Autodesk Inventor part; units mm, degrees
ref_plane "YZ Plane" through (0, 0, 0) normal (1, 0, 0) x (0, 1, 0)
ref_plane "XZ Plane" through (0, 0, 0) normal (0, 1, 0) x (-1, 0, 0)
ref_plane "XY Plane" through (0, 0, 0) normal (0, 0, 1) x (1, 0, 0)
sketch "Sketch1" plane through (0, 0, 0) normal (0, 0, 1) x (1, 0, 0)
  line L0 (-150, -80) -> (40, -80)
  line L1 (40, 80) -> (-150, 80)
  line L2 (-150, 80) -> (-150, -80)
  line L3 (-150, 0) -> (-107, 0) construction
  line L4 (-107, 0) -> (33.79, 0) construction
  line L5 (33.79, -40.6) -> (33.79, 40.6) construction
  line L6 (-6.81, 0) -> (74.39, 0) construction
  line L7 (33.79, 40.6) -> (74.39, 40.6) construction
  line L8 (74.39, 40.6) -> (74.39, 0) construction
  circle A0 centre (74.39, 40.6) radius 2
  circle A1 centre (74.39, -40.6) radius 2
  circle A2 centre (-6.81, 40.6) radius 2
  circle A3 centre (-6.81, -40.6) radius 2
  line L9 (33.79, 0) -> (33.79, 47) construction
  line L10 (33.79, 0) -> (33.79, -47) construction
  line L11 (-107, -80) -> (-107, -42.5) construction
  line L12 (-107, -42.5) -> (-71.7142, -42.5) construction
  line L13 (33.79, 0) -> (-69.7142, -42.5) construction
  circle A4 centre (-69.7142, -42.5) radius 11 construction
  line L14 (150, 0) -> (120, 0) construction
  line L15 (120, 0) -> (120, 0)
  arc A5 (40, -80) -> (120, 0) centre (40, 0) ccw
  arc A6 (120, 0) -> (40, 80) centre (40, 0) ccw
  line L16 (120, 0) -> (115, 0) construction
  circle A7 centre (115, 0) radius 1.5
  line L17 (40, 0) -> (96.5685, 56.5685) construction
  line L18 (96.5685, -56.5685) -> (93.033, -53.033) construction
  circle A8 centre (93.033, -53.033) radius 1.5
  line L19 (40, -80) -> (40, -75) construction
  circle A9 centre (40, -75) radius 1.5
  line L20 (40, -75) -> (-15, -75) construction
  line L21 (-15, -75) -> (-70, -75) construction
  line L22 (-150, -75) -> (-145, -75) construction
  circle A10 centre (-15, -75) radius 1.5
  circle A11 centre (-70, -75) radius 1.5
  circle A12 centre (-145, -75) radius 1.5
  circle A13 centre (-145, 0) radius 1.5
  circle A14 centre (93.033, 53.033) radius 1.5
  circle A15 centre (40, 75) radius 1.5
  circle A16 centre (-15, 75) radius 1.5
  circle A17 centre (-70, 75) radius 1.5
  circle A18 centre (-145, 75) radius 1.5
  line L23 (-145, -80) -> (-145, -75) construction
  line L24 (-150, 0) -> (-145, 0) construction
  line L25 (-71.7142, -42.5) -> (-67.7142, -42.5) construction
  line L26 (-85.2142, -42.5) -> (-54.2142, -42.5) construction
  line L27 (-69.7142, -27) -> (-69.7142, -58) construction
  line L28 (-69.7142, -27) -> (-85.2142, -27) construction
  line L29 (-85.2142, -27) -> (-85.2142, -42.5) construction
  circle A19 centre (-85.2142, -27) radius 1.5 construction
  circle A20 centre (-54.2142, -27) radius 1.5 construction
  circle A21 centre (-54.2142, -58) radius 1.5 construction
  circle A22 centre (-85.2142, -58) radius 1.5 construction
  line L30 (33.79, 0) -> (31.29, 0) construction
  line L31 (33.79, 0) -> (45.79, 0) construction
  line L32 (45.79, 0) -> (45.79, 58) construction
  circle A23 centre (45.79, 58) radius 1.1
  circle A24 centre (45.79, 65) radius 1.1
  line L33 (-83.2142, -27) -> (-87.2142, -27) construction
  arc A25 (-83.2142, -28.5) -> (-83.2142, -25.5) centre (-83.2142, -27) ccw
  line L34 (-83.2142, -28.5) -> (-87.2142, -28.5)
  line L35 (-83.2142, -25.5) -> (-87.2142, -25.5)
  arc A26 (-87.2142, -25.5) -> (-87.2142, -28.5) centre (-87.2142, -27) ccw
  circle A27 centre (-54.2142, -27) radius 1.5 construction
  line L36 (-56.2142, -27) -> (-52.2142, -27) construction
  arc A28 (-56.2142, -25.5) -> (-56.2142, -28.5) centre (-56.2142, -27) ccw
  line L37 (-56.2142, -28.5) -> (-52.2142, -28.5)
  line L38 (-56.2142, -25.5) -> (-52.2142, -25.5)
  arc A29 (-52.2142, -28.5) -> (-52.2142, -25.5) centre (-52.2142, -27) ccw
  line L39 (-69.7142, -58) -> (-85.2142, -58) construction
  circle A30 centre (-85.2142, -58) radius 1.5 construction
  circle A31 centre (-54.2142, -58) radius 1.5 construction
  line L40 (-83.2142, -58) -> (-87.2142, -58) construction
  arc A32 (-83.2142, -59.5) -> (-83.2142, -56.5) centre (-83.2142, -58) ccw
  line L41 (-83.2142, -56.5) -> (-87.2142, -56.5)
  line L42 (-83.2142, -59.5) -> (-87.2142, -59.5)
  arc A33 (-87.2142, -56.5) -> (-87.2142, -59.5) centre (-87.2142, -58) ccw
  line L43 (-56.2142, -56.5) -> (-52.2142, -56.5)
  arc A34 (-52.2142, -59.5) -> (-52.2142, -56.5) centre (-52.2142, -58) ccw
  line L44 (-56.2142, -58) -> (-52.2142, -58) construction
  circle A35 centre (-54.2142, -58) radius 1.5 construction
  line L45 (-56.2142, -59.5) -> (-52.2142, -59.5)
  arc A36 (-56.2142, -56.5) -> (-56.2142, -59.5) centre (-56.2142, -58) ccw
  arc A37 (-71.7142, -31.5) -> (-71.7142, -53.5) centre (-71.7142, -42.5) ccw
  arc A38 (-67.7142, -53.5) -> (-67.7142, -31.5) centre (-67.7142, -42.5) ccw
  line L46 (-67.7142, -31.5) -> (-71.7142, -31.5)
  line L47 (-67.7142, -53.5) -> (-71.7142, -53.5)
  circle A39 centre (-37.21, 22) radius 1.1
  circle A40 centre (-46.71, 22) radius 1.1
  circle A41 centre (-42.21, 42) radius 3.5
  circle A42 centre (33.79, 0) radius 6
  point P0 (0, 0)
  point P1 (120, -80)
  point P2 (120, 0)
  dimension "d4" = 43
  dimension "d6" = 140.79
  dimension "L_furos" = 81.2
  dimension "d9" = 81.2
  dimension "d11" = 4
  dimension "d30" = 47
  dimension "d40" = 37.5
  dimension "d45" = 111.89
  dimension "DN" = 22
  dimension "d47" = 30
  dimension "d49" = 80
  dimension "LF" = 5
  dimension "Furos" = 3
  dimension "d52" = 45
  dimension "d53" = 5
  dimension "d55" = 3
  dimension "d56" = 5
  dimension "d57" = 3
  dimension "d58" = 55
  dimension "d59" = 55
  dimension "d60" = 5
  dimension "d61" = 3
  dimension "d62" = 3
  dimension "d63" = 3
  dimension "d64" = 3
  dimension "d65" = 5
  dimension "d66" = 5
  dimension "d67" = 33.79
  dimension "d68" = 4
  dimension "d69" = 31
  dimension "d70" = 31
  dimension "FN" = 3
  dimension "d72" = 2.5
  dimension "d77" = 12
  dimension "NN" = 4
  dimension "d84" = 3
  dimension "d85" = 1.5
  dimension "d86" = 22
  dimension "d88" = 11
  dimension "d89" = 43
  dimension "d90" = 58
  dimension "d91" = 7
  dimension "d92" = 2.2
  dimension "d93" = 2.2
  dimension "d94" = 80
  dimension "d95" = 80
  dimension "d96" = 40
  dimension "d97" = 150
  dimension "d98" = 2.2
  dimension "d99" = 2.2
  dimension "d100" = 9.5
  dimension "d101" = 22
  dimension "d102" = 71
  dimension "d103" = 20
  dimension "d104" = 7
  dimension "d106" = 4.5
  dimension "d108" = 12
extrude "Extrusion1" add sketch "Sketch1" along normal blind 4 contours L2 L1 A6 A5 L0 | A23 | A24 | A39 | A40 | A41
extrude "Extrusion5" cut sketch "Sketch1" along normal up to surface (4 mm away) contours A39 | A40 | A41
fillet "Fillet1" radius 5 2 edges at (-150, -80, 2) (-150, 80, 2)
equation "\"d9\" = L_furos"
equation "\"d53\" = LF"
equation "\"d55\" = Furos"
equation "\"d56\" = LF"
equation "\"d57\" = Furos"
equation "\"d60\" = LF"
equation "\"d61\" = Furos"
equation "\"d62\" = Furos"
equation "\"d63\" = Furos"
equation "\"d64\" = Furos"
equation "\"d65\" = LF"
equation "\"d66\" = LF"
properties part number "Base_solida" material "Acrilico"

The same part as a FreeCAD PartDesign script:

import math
import FreeCAD as App
import Part
import Sketcher


def edges_at(feature, points):
    """Names of the edges that pass closest to the given points."""
    edges = feature.Shape.Edges
    near = lambda p: min(range(len(edges)), key=lambda i: edges[i].distToShape(Part.Vertex(*p))[0])
    return sorted({f"Edge{near(p) + 1}" for p in points})

doc = App.newDocument("Part")
body = doc.addObject("PartDesign::Body", "Body")

# Sketch on XY plane
sketch1 = doc.addObject("Sketcher::SketchObject", "Sketch")
body.addObject(sketch1)
sketch1.AttachmentSupport = (doc.XY_Plane, [""])
sketch1.MapMode = "FlatFace"
sketch1.addGeometry(Part.LineSegment(App.Vector(-150, 80, 0), App.Vector(-150, -80, 0)), False)
sketch1.addGeometry(Part.LineSegment(App.Vector(-150, -80, 0), App.Vector(40, -80, 0)), False)
sketch1.addGeometry(Part.ArcOfCircle(Part.Circle(App.Vector(40, 0, 0), App.Vector(0, 0, 1), 80), math.radians(-90), math.radians(90)), False)
sketch1.addGeometry(Part.LineSegment(App.Vector(40, 80, 0), App.Vector(-150, 80, 0)), False)
sketch1.addGeometry(Part.Circle(App.Vector(-145, -75, 0), App.Vector(0, 0, 1), 1.5), False)
sketch1.addGeometry(Part.ArcOfCircle(Part.Circle(App.Vector(-83.2, -58, 0), App.Vector(0, 0, 1), 1.5), math.radians(-90), math.radians(90)), False)
sketch1.addGeometry(Part.LineSegment(App.Vector(-83.2, -59.5, 0), App.Vector(-87.2, -59.5, 0)), False)
sketch1.addGeometry(Part.ArcOfCircle(Part.Circle(App.Vector(-87.2, -58, 0), App.Vector(0, 0, 1), 1.5), math.radians(90), math.radians(270)), False)
sketch1.addGeometry(Part.LineSegment(App.Vector(-87.2, -56.5, 0), App.Vector(-83.2, -56.5, 0)), False)
sketch1.addGeometry(Part.Circle(App.Vector(-70, -75, 0), App.Vector(0, 0, 1), 1.5), False)
sketch1.addGeometry(Part.ArcOfCircle(Part.Circle(App.Vector(-56.2, -58, 0), App.Vector(0, 0, 1), 1.5), math.radians(90), math.radians(270)), False)
sketch1.addGeometry(Part.LineSegment(App.Vector(-56.2, -56.5, 0), App.Vector(-52.2, -56.5, 0)), False)
sketch1.addGeometry(Part.ArcOfCircle(Part.Circle(App.Vector(-52.2, -58, 0), App.Vector(0, 0, 1), 1.5), math.radians(-90), math.radians(90)), False)
sketch1.addGeometry(Part.LineSegment(App.Vector(-52.2, -59.5, 0), App.Vector(-56.2, -59.5, 0)), False)
sketch1.addGeometry(Part.ArcOfCircle(Part.Circle(App.Vector(-71.7, -42.5, 0), App.Vector(0, 0, 1), 11), math.radians(90), math.radians(270)), False)
sketch1.addGeometry(Part.LineSegment(App.Vector(-71.7, -31.5, 0), App.Vector(-67.7, -31.5, 0)), False)
sketch1.addGeometry(Part.ArcOfCircle(Part.Circle(App.Vector(-67.7, -42.5, 0), App.Vector(0, 0, 1), 11), math.radians(-90), math.radians(90)), False)
sketch1.addGeometry(Part.LineSegment(App.Vector(-67.7, -53.5, 0), App.Vector(-71.7, -53.5, 0)), False)
sketch1.addGeometry(Part.ArcOfCircle(Part.Circle(App.Vector(-83.2, -27, 0), App.Vector(0, 0, 1), 1.5), math.radians(-90), math.radians(90)), False)
sketch1.addGeometry(Part.LineSegment(App.Vector(-83.2, -28.5, 0), App.Vector(-87.2, -28.5, 0)), False)
sketch1.addGeometry(Part.ArcOfCircle(Part.Circle(App.Vector(-87.2, -27, 0), App.Vector(0, 0, 1), 1.5), math.radians(90), math.radians(270)), False)
sketch1.addGeometry(Part.LineSegment(App.Vector(-87.2, -25.5, 0), App.Vector(-83.2, -25.5, 0)), False)
sketch1.addGeometry(Part.ArcOfCircle(Part.Circle(App.Vector(-56.2, -27, 0), App.Vector(0, 0, 1), 1.5), math.radians(90), math.radians(270)), False)
sketch1.addGeometry(Part.LineSegment(App.Vector(-56.2, -25.5, 0), App.Vector(-52.2, -25.5, 0)), False)
sketch1.addGeometry(Part.ArcOfCircle(Part.Circle(App.Vector(-52.2, -27, 0), App.Vector(0, 0, 1), 1.5), math.radians(-90), math.radians(90)), False)
sketch1.addGeometry(Part.LineSegment(App.Vector(-52.2, -28.5, 0), App.Vector(-56.2, -28.5, 0)), False)
sketch1.addGeometry(Part.Circle(App.Vector(-15, -75, 0), App.Vector(0, 0, 1), 1.5), False)
sketch1.addGeometry(Part.Circle(App.Vector(40, -75, 0), App.Vector(0, 0, 1), 1.5), False)
sketch1.addGeometry(Part.Circle(App.Vector(-6.8, -40.6, 0), App.Vector(0, 0, 1), 2), False)
sketch1.addGeometry(Part.Circle(App.Vector(74.4, -40.6, 0), App.Vector(0, 0, 1), 2), False)
sketch1.addGeometry(Part.Circle(App.Vector(93, -53, 0), App.Vector(0, 0, 1), 1.5), False)
sketch1.addGeometry(Part.Circle(App.Vector(-145, 0, 0), App.Vector(0, 0, 1), 1.5), False)
sketch1.addGeometry(Part.Circle(App.Vector(-145, 75, 0), App.Vector(0, 0, 1), 1.5), False)
sketch1.addGeometry(Part.Circle(App.Vector(-70, 75, 0), App.Vector(0, 0, 1), 1.5), False)
sketch1.addGeometry(Part.Circle(App.Vector(33.8, 0, 0), App.Vector(0, 0, 1), 6), False)
sketch1.addGeometry(Part.Circle(App.Vector(115, 0, 0), App.Vector(0, 0, 1), 1.5), False)
sketch1.addGeometry(Part.Circle(App.Vector(-6.8, 40.6, 0), App.Vector(0, 0, 1), 2), False)
sketch1.addGeometry(Part.Circle(App.Vector(-15, 75, 0), App.Vector(0, 0, 1), 1.5), False)
sketch1.addGeometry(Part.Circle(App.Vector(40, 75, 0), App.Vector(0, 0, 1), 1.5), False)
sketch1.addGeometry(Part.Circle(App.Vector(74.4, 40.6, 0), App.Vector(0, 0, 1), 2), False)
sketch1.addGeometry(Part.Circle(App.Vector(93, 53, 0), App.Vector(0, 0, 1), 1.5), False)
sketch1.addConstraint(Sketcher.Constraint("Coincident", 0, 2, 1, 1))
sketch1.addConstraint(Sketcher.Constraint("Tangent", 1, 2, 2, 1))
sketch1.addConstraint(Sketcher.Constraint("Tangent", 2, 2, 3, 1))
sketch1.addConstraint(Sketcher.Constraint("Coincident", 3, 2, 0, 1))
sketch1.addConstraint(Sketcher.Constraint("Tangent", 5, 1, 6, 1))
sketch1.addConstraint(Sketcher.Constraint("Tangent", 6, 2, 7, 2))
sketch1.addConstraint(Sketcher.Constraint("Tangent", 7, 1, 8, 1))
sketch1.addConstraint(Sketcher.Constraint("Tangent", 8, 2, 5, 2))
sketch1.addConstraint(Sketcher.Constraint("Tangent", 10, 1, 11, 1))
sketch1.addConstraint(Sketcher.Constraint("Tangent", 11, 2, 12, 2))
sketch1.addConstraint(Sketcher.Constraint("Tangent", 12, 1, 13, 1))
sketch1.addConstraint(Sketcher.Constraint("Tangent", 13, 2, 10, 2))
sketch1.addConstraint(Sketcher.Constraint("Tangent", 14, 1, 15, 1))
sketch1.addConstraint(Sketcher.Constraint("Tangent", 15, 2, 16, 2))
sketch1.addConstraint(Sketcher.Constraint("Tangent", 16, 1, 17, 1))
sketch1.addConstraint(Sketcher.Constraint("Tangent", 17, 2, 14, 2))
sketch1.addConstraint(Sketcher.Constraint("Tangent", 18, 1, 19, 1))
sketch1.addConstraint(Sketcher.Constraint("Tangent", 19, 2, 20, 2))
sketch1.addConstraint(Sketcher.Constraint("Tangent", 20, 1, 21, 1))
sketch1.addConstraint(Sketcher.Constraint("Tangent", 21, 2, 18, 2))
sketch1.addConstraint(Sketcher.Constraint("Tangent", 22, 1, 23, 1))
sketch1.addConstraint(Sketcher.Constraint("Tangent", 23, 2, 24, 2))
sketch1.addConstraint(Sketcher.Constraint("Tangent", 24, 1, 25, 1))
sketch1.addConstraint(Sketcher.Constraint("Tangent", 25, 2, 22, 2))
sketch1.addConstraint(Sketcher.Constraint("Vertical", 0))
sketch1.addConstraint(Sketcher.Constraint("Horizontal", 1))
sketch1.addConstraint(Sketcher.Constraint("Horizontal", 3))
sketch1.addConstraint(Sketcher.Constraint("Horizontal", 6))
sketch1.addConstraint(Sketcher.Constraint("Horizontal", 8))
sketch1.addConstraint(Sketcher.Constraint("Horizontal", 11))
sketch1.addConstraint(Sketcher.Constraint("Horizontal", 13))
sketch1.addConstraint(Sketcher.Constraint("Horizontal", 15))
sketch1.addConstraint(Sketcher.Constraint("Horizontal", 17))
sketch1.addConstraint(Sketcher.Constraint("Horizontal", 19))
sketch1.addConstraint(Sketcher.Constraint("Horizontal", 21))
sketch1.addConstraint(Sketcher.Constraint("Horizontal", 23))
sketch1.addConstraint(Sketcher.Constraint("Horizontal", 25))
sketch1.addConstraint(Sketcher.Constraint("Equal", 4, 5))
sketch1.addConstraint(Sketcher.Constraint("Equal", 7, 9))
sketch1.addConstraint(Sketcher.Constraint("Equal", 9, 10))
sketch1.addConstraint(Sketcher.Constraint("Equal", 12, 18))
sketch1.addConstraint(Sketcher.Constraint("Equal", 20, 22))
sketch1.addConstraint(Sketcher.Constraint("Equal", 24, 26))
sketch1.addConstraint(Sketcher.Constraint("Equal", 26, 27))
sketch1.addConstraint(Sketcher.Constraint("Equal", 28, 29))
sketch1.addConstraint(Sketcher.Constraint("Equal", 27, 30))
sketch1.addConstraint(Sketcher.Constraint("Equal", 30, 31))
sketch1.addConstraint(Sketcher.Constraint("Equal", 31, 32))
sketch1.addConstraint(Sketcher.Constraint("Equal", 32, 33))
sketch1.addConstraint(Sketcher.Constraint("Equal", 33, 35))
sketch1.addConstraint(Sketcher.Constraint("Equal", 29, 36))
sketch1.addConstraint(Sketcher.Constraint("Equal", 35, 37))
sketch1.addConstraint(Sketcher.Constraint("Equal", 37, 38))
sketch1.addConstraint(Sketcher.Constraint("Equal", 36, 39))
sketch1.addConstraint(Sketcher.Constraint("Equal", 38, 40))
sketch1.addConstraint(Sketcher.Constraint("Symmetric", 4, 3, 32, 3, -1))
sketch1.addConstraint(Sketcher.Constraint("Symmetric", 9, 3, 33, 3, -1))
sketch1.addConstraint(Sketcher.Constraint("Symmetric", 28, 3, 36, 3, -1))
sketch1.addConstraint(Sketcher.Constraint("Symmetric", 26, 3, 37, 3, -1))
sketch1.addConstraint(Sketcher.Constraint("Symmetric", 27, 3, 38, 3, -1))
sketch1.addConstraint(Sketcher.Constraint("Symmetric", 29, 3, 39, 3, -1))
sketch1.addConstraint(Sketcher.Constraint("Symmetric", 30, 3, 40, 3, -1))
sketch1.addConstraint(Sketcher.Constraint("PointOnObject", 2, 3, -1))
sketch1.addConstraint(Sketcher.Constraint("PointOnObject", 31, 3, -1))
sketch1.addConstraint(Sketcher.Constraint("PointOnObject", 34, 3, -1))
sketch1.addConstraint(Sketcher.Constraint("PointOnObject", 35, 3, -1))
sketch1.addConstraint(Sketcher.Constraint("Horizontal", 4, 3, 9, 3))
sketch1.addConstraint(Sketcher.Constraint("Horizontal", 7, 3, 10, 3))
sketch1.addConstraint(Sketcher.Constraint("Horizontal", 20, 3, 22, 3))
sketch1.addConstraint(Sketcher.Constraint("Horizontal", 9, 3, 26, 3))
sketch1.addConstraint(Sketcher.Constraint("Horizontal", 26, 3, 27, 3))
sketch1.addConstraint(Sketcher.Constraint("Horizontal", 28, 3, 29, 3))
sketch1.addConstraint(Sketcher.Constraint("Vertical", 5, 3, 18, 3))
sketch1.addConstraint(Sketcher.Constraint("Vertical", 7, 3, 20, 3))
sketch1.addConstraint(Sketcher.Constraint("Vertical", 10, 3, 22, 3))
sketch1.addConstraint(Sketcher.Constraint("Vertical", 12, 3, 24, 3))
sketch1.addConstraint(Sketcher.Constraint("Vertical", 2, 3, 27, 3))
sketch1.addConstraint(Sketcher.Constraint("Vertical", 4, 3, 31, 3))
sketch1.addConstraint(Sketcher.Constraint("Equal", 8, 11))
sketch1.addConstraint(Sketcher.Constraint("Equal", 13, 15))
sketch1.addConstraint(Sketcher.Constraint("Diameter", 4, 3.0))
sketch1.addConstraint(Sketcher.Constraint("Diameter", 28, 4.0))
sketch1.addConstraint(Sketcher.Constraint("Diameter", 34, 12.0))
sketch1.addConstraint(Sketcher.Constraint("Radius", 2, 80.0))
sketch1.addConstraint(Sketcher.Constraint("Radius", 14, 11.0))
sketch1.addConstraint(Sketcher.Constraint("DistanceX", 6, 2, 6, 1, 4.0))
sketch1.addConstraint(Sketcher.Constraint("DistanceX", -1, 1, 2, 3, 40.0))
sketch1.addConstraint(Sketcher.Constraint("DistanceY", 5, 3, -1, 1, 58.0))
sketch1.addConstraint(Sketcher.Constraint("DistanceX", 0, 2, -1, 1, 150.0))
sketch1.addConstraint(Sketcher.Constraint("DistanceX", 7, 3, 10, 3, 31.0))
sketch1.addConstraint(Sketcher.Constraint("DistanceY", 5, 3, 18, 3, 31.0))
sketch1.addConstraint(Sketcher.Constraint("DistanceX", 9, 3, 26, 3, 55.0))
sketch1.addConstraint(Sketcher.Constraint("DistanceX", 26, 3, 27, 3, 55.0))
sketch1.addConstraint(Sketcher.Constraint("DistanceX", 0, 2, 4, 3, 5.0))
sketch1.addConstraint(Sketcher.Constraint("DistanceY", 0, 2, 4, 3, 5.0))
sketch1.addConstraint(Sketcher.Constraint("DistanceY", 10, 1, 16, 1, 3.0))
sketch1.addConstraint(Sketcher.Constraint("DistanceX", 28, 3, 29, 3, 81.2))
sketch1.addConstraint(Sketcher.Constraint("DistanceY", 28, 3, 36, 3, 81.2))
sketch1.addConstraint(Sketcher.Constraint("DistanceX", -1, 1, 34, 3, 33.79))
sketch1.addConstraint(Sketcher.Constraint("DistanceX", -1, 1, 35, 3, 115.0))
sketch1.addConstraint(Sketcher.Constraint("DistanceX", 5, 3, 14, 3, 11.5))
sketch1.addConstraint(Sketcher.Constraint("DistanceX", 28, 3, 34, 3, 40.6))
sketch1.addConstraint(Sketcher.Constraint("DistanceX", -1, 1, 30, 3, 93.033))
sketch1.addConstraint(Sketcher.Constraint("DistanceY", 30, 3, -1, 1, 53.033))
sketch1.addConstraint(Sketcher.Constraint("DistanceX", 5, 3, -1, 1, 83.2142))
pad1 = doc.addObject("PartDesign::Pad", "Pad")
body.addObject(pad1)
pad1.Profile = sketch1
pad1.Length = 4

# Sketch on XY plane
sketch2 = doc.addObject("Sketcher::SketchObject", "Sketch001")
body.addObject(sketch2)
sketch2.AttachmentSupport = (doc.XY_Plane, [""])
sketch2.MapMode = "FlatFace"
sketch2.addGeometry(Part.Circle(App.Vector(-37.2, 22, 0), App.Vector(0, 0, 1), 1.1), False)
sketch2.addGeometry(Part.Circle(App.Vector(-46.7, 22, 0), App.Vector(0, 0, 1), 1.1), False)
sketch2.addGeometry(Part.Circle(App.Vector(-42.2, 42, 0), App.Vector(0, 0, 1), 3.5), False)
sketch2.addConstraint(Sketcher.Constraint("Equal", 0, 1))
sketch2.addConstraint(Sketcher.Constraint("Horizontal", 0, 3, 1, 3))
sketch2.addConstraint(Sketcher.Constraint("Diameter", 2, 7.0))
sketch2.addConstraint(Sketcher.Constraint("Diameter", 0, 2.2))
sketch2.addConstraint(Sketcher.Constraint("DistanceY", -1, 1, 0, 3, 22.0))
sketch2.addConstraint(Sketcher.Constraint("DistanceY", 1, 3, 2, 3, 20.0))
sketch2.addConstraint(Sketcher.Constraint("DistanceX", 2, 3, 0, 3, 5.0))
sketch2.addConstraint(Sketcher.Constraint("DistanceX", 1, 3, 0, 3, 9.5))
sketch2.addConstraint(Sketcher.Constraint("DistanceX", 0, 3, -1, 1, 37.21))
pocket1 = doc.addObject("PartDesign::Pocket", "Pocket")
body.addObject(pocket1)
pocket1.Profile = sketch2
pocket1.Length = 4
pocket1.Reversed = True
doc.recompute()

fillet = doc.addObject("PartDesign::Fillet", "Fillet")
body.addObject(fillet)
fillet.Base = (pocket1, edges_at(pocket1, [(-150, -80, 2), (-150, 80, 2)]))
fillet.Radius = 5

doc.recompute()
